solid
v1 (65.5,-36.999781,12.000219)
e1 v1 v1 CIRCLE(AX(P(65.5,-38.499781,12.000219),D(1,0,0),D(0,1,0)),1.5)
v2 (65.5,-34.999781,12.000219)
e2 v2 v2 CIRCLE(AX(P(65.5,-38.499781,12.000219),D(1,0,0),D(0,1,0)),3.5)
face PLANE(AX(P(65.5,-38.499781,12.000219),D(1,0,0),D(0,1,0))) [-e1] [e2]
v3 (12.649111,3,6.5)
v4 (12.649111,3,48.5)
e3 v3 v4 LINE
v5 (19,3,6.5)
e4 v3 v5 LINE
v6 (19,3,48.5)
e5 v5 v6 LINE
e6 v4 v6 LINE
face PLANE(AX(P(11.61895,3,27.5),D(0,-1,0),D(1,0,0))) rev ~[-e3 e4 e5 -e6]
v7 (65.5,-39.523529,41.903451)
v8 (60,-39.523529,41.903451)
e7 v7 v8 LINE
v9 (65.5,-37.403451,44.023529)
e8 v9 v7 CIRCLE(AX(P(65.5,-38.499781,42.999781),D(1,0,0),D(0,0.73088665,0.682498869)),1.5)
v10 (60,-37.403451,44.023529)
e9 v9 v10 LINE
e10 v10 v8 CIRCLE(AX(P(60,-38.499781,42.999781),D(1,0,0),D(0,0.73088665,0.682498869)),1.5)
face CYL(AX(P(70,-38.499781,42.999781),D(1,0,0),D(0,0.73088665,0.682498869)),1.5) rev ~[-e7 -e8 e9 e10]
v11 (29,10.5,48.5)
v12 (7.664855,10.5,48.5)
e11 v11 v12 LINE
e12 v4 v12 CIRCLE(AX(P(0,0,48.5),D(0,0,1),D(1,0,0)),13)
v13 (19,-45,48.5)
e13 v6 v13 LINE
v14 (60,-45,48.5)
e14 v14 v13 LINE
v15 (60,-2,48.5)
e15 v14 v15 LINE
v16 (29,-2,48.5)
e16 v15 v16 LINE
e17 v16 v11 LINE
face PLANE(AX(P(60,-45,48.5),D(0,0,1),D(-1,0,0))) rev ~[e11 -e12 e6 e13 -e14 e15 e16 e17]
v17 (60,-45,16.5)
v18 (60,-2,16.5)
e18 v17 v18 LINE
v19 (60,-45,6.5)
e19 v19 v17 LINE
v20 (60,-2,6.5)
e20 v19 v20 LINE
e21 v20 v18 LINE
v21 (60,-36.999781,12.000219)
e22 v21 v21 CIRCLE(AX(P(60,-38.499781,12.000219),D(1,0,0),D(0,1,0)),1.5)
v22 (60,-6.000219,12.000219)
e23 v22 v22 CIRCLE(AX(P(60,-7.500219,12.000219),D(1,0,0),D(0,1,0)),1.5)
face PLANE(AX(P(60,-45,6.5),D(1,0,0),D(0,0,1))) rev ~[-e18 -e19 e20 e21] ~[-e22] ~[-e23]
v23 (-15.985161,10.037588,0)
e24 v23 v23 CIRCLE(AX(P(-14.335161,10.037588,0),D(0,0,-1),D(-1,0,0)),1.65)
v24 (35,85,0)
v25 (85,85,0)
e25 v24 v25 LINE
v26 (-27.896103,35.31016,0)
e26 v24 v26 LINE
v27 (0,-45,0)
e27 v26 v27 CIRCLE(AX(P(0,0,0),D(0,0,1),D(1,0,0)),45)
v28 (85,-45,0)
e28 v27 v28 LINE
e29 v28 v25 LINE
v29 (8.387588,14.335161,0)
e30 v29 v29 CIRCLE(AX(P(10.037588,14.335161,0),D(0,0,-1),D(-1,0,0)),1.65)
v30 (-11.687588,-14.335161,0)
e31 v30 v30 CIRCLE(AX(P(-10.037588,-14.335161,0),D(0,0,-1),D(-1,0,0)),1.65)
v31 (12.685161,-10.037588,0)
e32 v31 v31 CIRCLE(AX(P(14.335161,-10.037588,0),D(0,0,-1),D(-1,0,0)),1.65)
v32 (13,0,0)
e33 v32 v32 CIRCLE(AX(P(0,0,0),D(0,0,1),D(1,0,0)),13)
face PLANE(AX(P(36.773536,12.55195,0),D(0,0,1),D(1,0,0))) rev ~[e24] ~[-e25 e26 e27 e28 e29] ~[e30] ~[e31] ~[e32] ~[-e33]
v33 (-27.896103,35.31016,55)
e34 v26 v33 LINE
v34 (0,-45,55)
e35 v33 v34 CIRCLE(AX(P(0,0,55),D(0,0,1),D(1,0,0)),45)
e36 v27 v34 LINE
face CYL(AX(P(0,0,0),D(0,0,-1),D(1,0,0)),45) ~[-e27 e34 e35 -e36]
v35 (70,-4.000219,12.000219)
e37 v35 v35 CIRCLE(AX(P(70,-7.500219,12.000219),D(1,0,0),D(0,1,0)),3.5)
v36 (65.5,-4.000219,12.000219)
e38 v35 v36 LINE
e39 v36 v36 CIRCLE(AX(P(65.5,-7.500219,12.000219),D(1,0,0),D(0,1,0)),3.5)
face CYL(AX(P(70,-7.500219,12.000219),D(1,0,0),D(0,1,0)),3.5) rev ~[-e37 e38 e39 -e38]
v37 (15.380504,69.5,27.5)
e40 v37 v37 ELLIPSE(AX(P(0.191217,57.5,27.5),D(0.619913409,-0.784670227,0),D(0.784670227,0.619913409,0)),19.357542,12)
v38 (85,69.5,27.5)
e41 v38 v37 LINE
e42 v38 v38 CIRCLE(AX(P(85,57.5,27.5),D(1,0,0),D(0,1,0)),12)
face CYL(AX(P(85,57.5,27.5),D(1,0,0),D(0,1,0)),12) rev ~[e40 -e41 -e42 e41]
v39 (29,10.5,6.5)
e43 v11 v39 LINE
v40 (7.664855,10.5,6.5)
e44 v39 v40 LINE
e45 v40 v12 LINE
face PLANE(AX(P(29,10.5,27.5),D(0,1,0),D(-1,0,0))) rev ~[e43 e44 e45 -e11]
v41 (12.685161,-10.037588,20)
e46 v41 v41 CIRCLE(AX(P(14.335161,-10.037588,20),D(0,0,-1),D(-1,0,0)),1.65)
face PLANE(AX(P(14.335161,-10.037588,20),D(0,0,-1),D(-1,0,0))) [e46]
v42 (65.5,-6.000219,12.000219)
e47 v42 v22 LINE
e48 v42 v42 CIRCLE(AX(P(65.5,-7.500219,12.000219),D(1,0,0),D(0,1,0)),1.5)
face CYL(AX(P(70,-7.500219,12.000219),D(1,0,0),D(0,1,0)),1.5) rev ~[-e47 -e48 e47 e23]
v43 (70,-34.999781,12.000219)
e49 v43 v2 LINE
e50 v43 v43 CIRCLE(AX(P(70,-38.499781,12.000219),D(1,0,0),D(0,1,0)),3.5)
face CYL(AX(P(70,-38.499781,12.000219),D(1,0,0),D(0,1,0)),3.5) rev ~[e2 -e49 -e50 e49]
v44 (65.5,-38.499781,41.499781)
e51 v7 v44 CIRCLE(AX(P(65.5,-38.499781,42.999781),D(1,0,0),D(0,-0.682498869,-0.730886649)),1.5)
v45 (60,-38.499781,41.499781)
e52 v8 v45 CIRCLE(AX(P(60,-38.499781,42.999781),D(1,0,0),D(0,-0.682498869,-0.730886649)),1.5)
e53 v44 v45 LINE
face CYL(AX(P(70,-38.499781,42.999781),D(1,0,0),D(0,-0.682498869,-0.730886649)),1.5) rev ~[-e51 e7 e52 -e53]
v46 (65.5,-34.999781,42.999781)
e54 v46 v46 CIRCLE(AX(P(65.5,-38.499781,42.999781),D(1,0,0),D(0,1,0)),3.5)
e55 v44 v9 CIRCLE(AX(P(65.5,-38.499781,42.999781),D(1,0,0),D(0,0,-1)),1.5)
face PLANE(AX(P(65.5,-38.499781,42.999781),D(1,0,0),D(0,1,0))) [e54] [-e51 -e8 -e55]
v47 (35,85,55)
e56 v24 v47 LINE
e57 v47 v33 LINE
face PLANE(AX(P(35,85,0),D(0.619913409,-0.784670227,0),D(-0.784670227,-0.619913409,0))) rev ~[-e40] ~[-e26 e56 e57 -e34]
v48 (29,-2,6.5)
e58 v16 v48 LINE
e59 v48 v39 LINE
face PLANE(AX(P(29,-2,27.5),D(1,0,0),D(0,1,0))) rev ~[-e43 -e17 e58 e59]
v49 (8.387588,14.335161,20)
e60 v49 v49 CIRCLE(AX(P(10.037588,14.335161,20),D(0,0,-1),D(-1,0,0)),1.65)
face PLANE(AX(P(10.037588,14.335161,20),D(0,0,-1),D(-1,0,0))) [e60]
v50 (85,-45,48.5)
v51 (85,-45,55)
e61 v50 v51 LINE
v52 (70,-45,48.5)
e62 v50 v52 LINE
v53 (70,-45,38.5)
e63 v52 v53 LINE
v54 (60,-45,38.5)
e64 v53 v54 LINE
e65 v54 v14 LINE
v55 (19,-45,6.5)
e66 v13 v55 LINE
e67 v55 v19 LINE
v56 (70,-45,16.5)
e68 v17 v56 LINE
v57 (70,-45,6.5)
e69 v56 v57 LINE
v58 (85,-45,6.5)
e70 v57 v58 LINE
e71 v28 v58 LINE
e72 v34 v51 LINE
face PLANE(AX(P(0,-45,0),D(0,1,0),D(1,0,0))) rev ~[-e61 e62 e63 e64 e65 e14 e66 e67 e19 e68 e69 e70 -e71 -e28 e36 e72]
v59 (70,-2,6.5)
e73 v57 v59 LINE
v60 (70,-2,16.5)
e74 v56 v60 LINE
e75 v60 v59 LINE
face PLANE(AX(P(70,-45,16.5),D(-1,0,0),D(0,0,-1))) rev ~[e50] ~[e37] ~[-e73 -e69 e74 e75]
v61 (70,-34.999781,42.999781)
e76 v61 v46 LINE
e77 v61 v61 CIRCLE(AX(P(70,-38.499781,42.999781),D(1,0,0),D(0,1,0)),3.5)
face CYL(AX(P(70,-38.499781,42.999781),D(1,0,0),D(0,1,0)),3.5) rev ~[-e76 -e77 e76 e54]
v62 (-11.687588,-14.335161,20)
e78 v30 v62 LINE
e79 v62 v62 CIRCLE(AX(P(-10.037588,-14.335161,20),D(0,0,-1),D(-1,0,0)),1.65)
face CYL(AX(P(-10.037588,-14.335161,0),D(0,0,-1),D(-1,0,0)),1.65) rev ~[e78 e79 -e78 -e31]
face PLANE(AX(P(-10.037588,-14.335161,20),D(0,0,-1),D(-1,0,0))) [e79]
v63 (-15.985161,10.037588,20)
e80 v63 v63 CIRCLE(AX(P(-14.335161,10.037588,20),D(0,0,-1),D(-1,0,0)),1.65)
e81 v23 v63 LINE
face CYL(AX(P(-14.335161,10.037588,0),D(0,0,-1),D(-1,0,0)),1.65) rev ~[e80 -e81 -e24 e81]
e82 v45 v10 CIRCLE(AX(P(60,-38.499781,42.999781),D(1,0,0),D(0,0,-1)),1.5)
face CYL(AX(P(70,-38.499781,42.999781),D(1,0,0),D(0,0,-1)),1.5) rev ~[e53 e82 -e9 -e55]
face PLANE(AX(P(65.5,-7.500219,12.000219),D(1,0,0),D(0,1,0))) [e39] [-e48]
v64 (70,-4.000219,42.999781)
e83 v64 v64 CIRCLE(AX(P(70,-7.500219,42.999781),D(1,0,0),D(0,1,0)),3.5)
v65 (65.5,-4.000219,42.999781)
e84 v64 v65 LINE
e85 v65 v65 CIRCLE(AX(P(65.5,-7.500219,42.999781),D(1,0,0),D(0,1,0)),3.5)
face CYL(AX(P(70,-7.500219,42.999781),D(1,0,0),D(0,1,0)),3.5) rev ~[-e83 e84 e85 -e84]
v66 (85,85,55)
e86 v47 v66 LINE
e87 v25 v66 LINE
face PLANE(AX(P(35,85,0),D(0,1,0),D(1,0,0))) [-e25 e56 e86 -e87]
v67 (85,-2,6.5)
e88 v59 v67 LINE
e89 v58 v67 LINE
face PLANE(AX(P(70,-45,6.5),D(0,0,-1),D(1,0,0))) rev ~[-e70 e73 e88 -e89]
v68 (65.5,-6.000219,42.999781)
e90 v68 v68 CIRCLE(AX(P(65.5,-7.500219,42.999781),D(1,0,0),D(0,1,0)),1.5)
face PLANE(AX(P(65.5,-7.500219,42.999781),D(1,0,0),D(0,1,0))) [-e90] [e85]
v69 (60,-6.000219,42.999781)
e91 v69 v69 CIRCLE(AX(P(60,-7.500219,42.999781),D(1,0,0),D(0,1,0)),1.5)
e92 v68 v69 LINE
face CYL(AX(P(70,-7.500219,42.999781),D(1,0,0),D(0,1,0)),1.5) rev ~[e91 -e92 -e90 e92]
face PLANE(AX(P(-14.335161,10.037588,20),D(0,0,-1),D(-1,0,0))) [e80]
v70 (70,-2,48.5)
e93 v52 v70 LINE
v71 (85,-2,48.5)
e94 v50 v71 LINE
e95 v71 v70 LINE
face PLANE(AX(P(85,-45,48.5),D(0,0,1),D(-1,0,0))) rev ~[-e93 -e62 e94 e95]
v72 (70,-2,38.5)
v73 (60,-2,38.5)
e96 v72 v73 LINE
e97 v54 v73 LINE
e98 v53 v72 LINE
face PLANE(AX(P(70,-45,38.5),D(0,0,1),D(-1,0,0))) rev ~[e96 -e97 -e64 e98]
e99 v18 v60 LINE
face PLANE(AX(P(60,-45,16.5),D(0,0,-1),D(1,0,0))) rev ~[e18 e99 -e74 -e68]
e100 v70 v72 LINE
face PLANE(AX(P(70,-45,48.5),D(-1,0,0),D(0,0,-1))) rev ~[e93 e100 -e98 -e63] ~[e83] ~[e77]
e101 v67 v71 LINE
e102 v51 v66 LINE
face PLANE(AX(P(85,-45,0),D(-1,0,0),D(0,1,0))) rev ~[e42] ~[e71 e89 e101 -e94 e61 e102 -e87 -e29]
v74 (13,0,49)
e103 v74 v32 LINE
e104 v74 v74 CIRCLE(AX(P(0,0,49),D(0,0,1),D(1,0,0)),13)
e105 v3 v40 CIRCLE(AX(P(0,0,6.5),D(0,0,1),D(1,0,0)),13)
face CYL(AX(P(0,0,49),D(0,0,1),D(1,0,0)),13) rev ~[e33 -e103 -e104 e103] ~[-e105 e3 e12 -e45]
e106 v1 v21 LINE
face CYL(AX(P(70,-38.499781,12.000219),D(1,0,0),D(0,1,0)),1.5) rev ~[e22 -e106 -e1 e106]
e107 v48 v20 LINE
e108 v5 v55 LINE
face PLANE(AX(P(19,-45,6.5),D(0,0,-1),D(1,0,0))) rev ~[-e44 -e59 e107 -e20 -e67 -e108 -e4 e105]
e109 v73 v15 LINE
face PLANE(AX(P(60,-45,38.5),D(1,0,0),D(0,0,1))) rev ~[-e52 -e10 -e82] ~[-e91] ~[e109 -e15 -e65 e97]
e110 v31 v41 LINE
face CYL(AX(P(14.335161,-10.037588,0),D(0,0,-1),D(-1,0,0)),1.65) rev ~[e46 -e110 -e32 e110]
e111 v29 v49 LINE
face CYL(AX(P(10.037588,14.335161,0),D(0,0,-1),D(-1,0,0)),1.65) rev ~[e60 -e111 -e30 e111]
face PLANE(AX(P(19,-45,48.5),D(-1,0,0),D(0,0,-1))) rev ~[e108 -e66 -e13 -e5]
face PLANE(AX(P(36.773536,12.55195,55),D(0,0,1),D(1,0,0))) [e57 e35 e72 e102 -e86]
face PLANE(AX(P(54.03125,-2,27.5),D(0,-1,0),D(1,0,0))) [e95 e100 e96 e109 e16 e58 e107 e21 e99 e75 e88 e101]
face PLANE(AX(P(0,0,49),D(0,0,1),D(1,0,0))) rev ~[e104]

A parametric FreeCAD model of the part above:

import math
import FreeCAD as App
import Part
import Sketcher

V = App.Vector

doc = App.newDocument("Part")
body = doc.addObject("PartDesign::Body", "Body")

# Sketch on XY plane
sketch1 = body.newObject("Sketcher::SketchObject", "Sketch")
sketch1.AttachmentSupport = (doc.getObject("XY_Plane"), [""])
sketch1.MapMode = "FlatFace"
sketch1.addGeometry([
    Part.LineSegment(V(35, 85, 0), V(-28, 35, 0)),  # 0
    Part.ArcOfCircle(Part.Circle(V(0, 0, 0), V(0, 0, 1), 45), math.radians(128), math.radians(270)),  # 1
    Part.LineSegment(V(0, -45, 0), V(85, -45, 0)),  # 2
    Part.LineSegment(V(85, -45, 0), V(85, 85, 0)),  # 3
    Part.LineSegment(V(85, 85, 0), V(35, 85, 0)),  # 4
], False)
sketch1.addConstraint([
    Sketcher.Constraint("Tangent", 0, 2, 1, 1),
    Sketcher.Constraint("Tangent", 1, 2, 2, 1),
    Sketcher.Constraint("Coincident", 2, 2, 3, 1),
    Sketcher.Constraint("Coincident", 3, 2, 4, 1),
    Sketcher.Constraint("Coincident", 4, 2, 0, 1),
    Sketcher.Constraint("Horizontal", 2),
    Sketcher.Constraint("Vertical", 3),
    Sketcher.Constraint("Horizontal", 4),
    Sketcher.Constraint("Coincident", 1, 3, -1, 1),
    Sketcher.Constraint("Radius", 1, 45.0),
    Sketcher.Constraint("DistanceX", 2, 1, 2, 2, 85.0),
    Sketcher.Constraint("DistanceX", 4, 2, 4, 1, 50.0),
    Sketcher.Constraint("DistanceY", 3, 1, 3, 2, 130.0),
])
pad1 = body.newObject("PartDesign::Pad", "Pad")
pad1.Profile = sketch1
pad1.Length = 55

# Sketch on XZ plane
sketch2 = body.newObject("Sketcher::SketchObject", "Sketch001")
sketch2.AttachmentSupport = (doc.getObject("XZ_Plane"), [""])
sketch2.MapMode = "FlatFace"
sketch2.AttachmentOffset = App.Placement(V(0, 0, 45), App.Rotation())
sketch2.addGeometry([
    Part.LineSegment(V(60, 48, 0), V(19, 48, 0)),  # 0
    Part.LineSegment(V(19, 48, 0), V(19, 6, 0)),  # 1
    Part.LineSegment(V(19, 6, 0), V(60, 6, 0)),  # 2
    Part.LineSegment(V(60, 6, 0), V(60, 16, 0)),  # 3
    Part.LineSegment(V(60, 16, 0), V(70, 16, 0)),  # 4
    Part.LineSegment(V(70, 16, 0), V(70, 6, 0)),  # 5
    Part.LineSegment(V(70, 6, 0), V(85, 6, 0)),  # 6
    Part.LineSegment(V(85, 6, 0), V(85, 48, 0)),  # 7
    Part.LineSegment(V(85, 48, 0), V(70, 48, 0)),  # 8
    Part.LineSegment(V(70, 48, 0), V(70, 38, 0)),  # 9
    Part.LineSegment(V(70, 38, 0), V(60, 38, 0)),  # 10
    Part.LineSegment(V(60, 38, 0), V(60, 48, 0)),  # 11
], False)
sketch2.addConstraint([
    Sketcher.Constraint("Coincident", 0, 2, 1, 1),
    Sketcher.Constraint("Coincident", 1, 2, 2, 1),
    Sketcher.Constraint("Coincident", 2, 2, 3, 1),
    Sketcher.Constraint("Coincident", 3, 2, 4, 1),
    Sketcher.Constraint("Coincident", 4, 2, 5, 1),
    Sketcher.Constraint("Coincident", 5, 2, 6, 1),
    Sketcher.Constraint("Coincident", 6, 2, 7, 1),
    Sketcher.Constraint("Coincident", 7, 2, 8, 1),
    Sketcher.Constraint("Coincident", 8, 2, 9, 1),
    Sketcher.Constraint("Coincident", 9, 2, 10, 1),
    Sketcher.Constraint("Coincident", 10, 2, 11, 1),
    Sketcher.Constraint("Coincident", 11, 2, 0, 1),
    Sketcher.Constraint("Horizontal", 0),
    Sketcher.Constraint("Vertical", 1),
    Sketcher.Constraint("Horizontal", 2),
    Sketcher.Constraint("Vertical", 3),
    Sketcher.Constraint("Horizontal", 4),
    Sketcher.Constraint("Vertical", 5),
    Sketcher.Constraint("Horizontal", 6),
    Sketcher.Constraint("Vertical", 7),
    Sketcher.Constraint("Horizontal", 8),
    Sketcher.Constraint("Vertical", 9),
    Sketcher.Constraint("Horizontal", 10),
    Sketcher.Constraint("Vertical", 11),
    Sketcher.Constraint("Horizontal", 2, 2, 5, 2),
    Sketcher.Constraint("Horizontal", 0, 2, 7, 2),
    Sketcher.Constraint("Vertical", 5, 2, 8, 2),
    Sketcher.Constraint("Vertical", 3, 2, 10, 2),
    Sketcher.Constraint("Equal", 10, 3),
    Sketcher.Constraint("Equal", 5, 9),
    Sketcher.Constraint("DistanceX", 0, 2, 0, 1, 41.0),
    Sketcher.Constraint("DistanceX", 4, 1, 4, 2, 10.0),
    Sketcher.Constraint("DistanceX", 6, 1, 6, 2, 15.0),
    Sketcher.Constraint("DistanceY", 1, 2, 1, 1, 42.0),
    Sketcher.Constraint("DistanceX", -1, 1, 0, 2, 19.0),
    Sketcher.Constraint("DistanceY", -1, 1, 0, 2, 48.5),
])
pocket1 = body.newObject("PartDesign::Pocket", "Pocket")
pocket1.Profile = sketch2
pocket1.Length = 43

# Sketch on YZ plane
sketch3 = body.newObject("Sketcher::SketchObject", "Sketch002")
sketch3.AttachmentSupport = (doc.getObject("YZ_Plane"), [""])
sketch3.MapMode = "FlatFace"
sketch3.AttachmentOffset = App.Placement(V(0, 0, 70), App.Rotation())
sketch3.addGeometry([
    Part.Circle(V(-7.5, 43, 0), V(0, 0, 1), 1.5),  # 0
    Part.Circle(V(-7.5, 12, 0), V(0, 0, 1), 1.5),  # 1
    Part.Circle(V(-38.5, 12, 0), V(0, 0, 1), 1.5),  # 2
    Part.ArcOfCircle(Part.Circle(V(-38.5, 43, 0), V(0, 0, 1), 1.5), math.radians(-90), math.radians(43)),  # 3
    Part.ArcOfCircle(Part.Circle(V(-38.5, 43, 0), V(0, 0, 1), 1.5), math.radians(43), math.radians(227)),  # 4
    Part.ArcOfCircle(Part.Circle(V(-38.5, 43, 0), V(0, 0, 1), 1.5), math.radians(-133), math.radians(-90)),  # 5
], False)
sketch3.addConstraint([
    Sketcher.Constraint("Tangent", 3, 2, 4, 1),
    Sketcher.Constraint("Tangent", 4, 2, 5, 1),
    Sketcher.Constraint("Tangent", 5, 2, 3, 1),
    Sketcher.Constraint("Equal", 0, 1),
    Sketcher.Constraint("Equal", 1, 2),
    Sketcher.Constraint("Equal", 2, 3),
    Sketcher.Constraint("Horizontal", 1, 3, 2, 3),
    Sketcher.Constraint("Horizontal", 0, 3, 3, 3),
    Sketcher.Constraint("Vertical", 0, 3, 1, 3),
    Sketcher.Constraint("Vertical", 2, 3, 3, 3),
    Sketcher.Constraint("Vertical", 4, 3, 5, 2),
    Sketcher.Constraint("Diameter", 0, 3.0),
    Sketcher.Constraint("DistanceX", 0, 3, -1, 1, 7.500219),
    Sketcher.Constraint("DistanceY", -1, 1, 0, 3, 42.999781),
    Sketcher.Constraint("DistanceY", -1, 1, 1, 3, 12.000219),
    Sketcher.Constraint("DistanceX", 2, 3, -1, 1, 38.499781),
    Sketcher.Constraint("DistanceX", 3, 2, -1, 1, 37.403451),
    Sketcher.Constraint("DistanceX", 4, 2, -1, 1, 39.523529),
])
pocket2 = body.newObject("PartDesign::Pocket", "Pocket001")
pocket2.Profile = sketch3
pocket2.Length = 10

# Sketch on YZ plane
sketch4 = body.newObject("Sketcher::SketchObject", "Sketch003")
sketch4.AttachmentSupport = (doc.getObject("YZ_Plane"), [""])
sketch4.MapMode = "FlatFace"
sketch4.AttachmentOffset = App.Placement(V(0, 0, 70), App.Rotation())
sketch4.addGeometry([
    Part.Circle(V(-7.5, 43, 0), V(0, 0, 1), 3.5),
    Part.Circle(V(-7.5, 12, 0), V(0, 0, 1), 3.5),
    Part.Circle(V(-38.5, 12, 0), V(0, 0, 1), 3.5),
    Part.Circle(V(-38.5, 43, 0), V(0, 0, 1), 3.5),
], False)
sketch4.addConstraint([
    Sketcher.Constraint("Equal", 0, 1),
    Sketcher.Constraint("Equal", 1, 2),
    Sketcher.Constraint("Equal", 2, 3),
    Sketcher.Constraint("Horizontal", 1, 3, 2, 3),
    Sketcher.Constraint("Horizontal", 0, 3, 3, 3),
    Sketcher.Constraint("Vertical", 0, 3, 1, 3),
    Sketcher.Constraint("Vertical", 2, 3, 3, 3),
    Sketcher.Constraint("Diameter", 0, 7.0),
    Sketcher.Constraint("DistanceX", 0, 3, -1, 1, 7.500219),
    Sketcher.Constraint("DistanceY", -1, 1, 0, 3, 42.999781),
    Sketcher.Constraint("DistanceY", -1, 1, 1, 3, 12.000219),
    Sketcher.Constraint("DistanceX", 2, 3, -1, 1, 38.499781),
])
pocket3 = body.newObject("PartDesign::Pocket", "Pocket002")
pocket3.Profile = sketch4
pocket3.Length = 4.5

# Sketch on XY plane
sketch5 = body.newObject("Sketcher::SketchObject", "Sketch004")
sketch5.AttachmentSupport = (doc.getObject("XY_Plane"), [""])
sketch5.MapMode = "FlatFace"
sketch5.AttachmentOffset = App.Placement(V(0, 0, 27.5), App.Rotation())
sketch5.addGeometry([
    Part.LineSegment(V(29, 10, 0), V(6, 10, 0)),  # 0
    Part.ArcOfCircle(Part.Circle(V(0, 0, 0), V(0, 0, 1), 12), math.radians(14), math.radians(61)),  # 1
    Part.LineSegment(V(12, 3, 0), V(19, 3, 0)),  # 2
    Part.LineSegment(V(19, 3, 0), V(19, -2, 0)),  # 3
    Part.LineSegment(V(19, -2, 0), V(29, -2, 0)),  # 4
    Part.LineSegment(V(29, -2, 0), V(29, 10, 0)),  # 5
], False)
sketch5.addConstraint([
    Sketcher.Constraint("Coincident", 0, 2, 1, 2),
    Sketcher.Constraint("Coincident", 1, 1, 2, 1),
    Sketcher.Constraint("Coincident", 2, 2, 3, 1),
    Sketcher.Constraint("Coincident", 3, 2, 4, 1),
    Sketcher.Constraint("Coincident", 4, 2, 5, 1),
    Sketcher.Constraint("Coincident", 5, 2, 0, 1),
    Sketcher.Constraint("Horizontal", 0),
    Sketcher.Constraint("Horizontal", 2),
    Sketcher.Constraint("Vertical", 3),
    Sketcher.Constraint("Horizontal", 4),
    Sketcher.Constraint("Vertical", 5),
    Sketcher.Constraint("Coincident", 1, 3, -1, 1),
    Sketcher.Constraint("Radius", 1, 12.0),
    Sketcher.Constraint("DistanceX", 4, 1, 4, 2, 10.0),
    Sketcher.Constraint("DistanceY", 3, 2, 3, 1, 5.0),
    Sketcher.Constraint("DistanceY", 5, 1, 5, 2, 12.5),
    Sketcher.Constraint("DistanceY", -1, 1, 1, 1, 3.0),
    Sketcher.Constraint("DistanceX", -1, 1, 2, 2, 19.0),
])
pocket4 = body.newObject("PartDesign::Pocket", "Pocket003")
pocket4.Profile = sketch5
pocket4.Length = 42
pocket4.Midplane = True

# Sketch on XY plane
sketch6 = body.newObject("Sketcher::SketchObject", "Sketch005")
sketch6.AttachmentSupport = (doc.getObject("XY_Plane"), [""])
sketch6.MapMode = "FlatFace"
sketch6.AttachmentOffset = App.Placement(V(0, 0, 49), App.Rotation())
sketch6.addGeometry(Part.Circle(V(0, 0, 0), V(0, 0, 1), 13), False)
sketch6.addConstraint([
    Sketcher.Constraint("Coincident", 0, 3, -1, 1),
    Sketcher.Constraint("Diameter", 0, 26.0),
])
pocket5 = body.newObject("PartDesign::Pocket", "Pocket004")
pocket5.Profile = sketch6
pocket5.Length = 49

# Sketch on YZ plane
sketch7 = body.newObject("Sketcher::SketchObject", "Sketch006")
sketch7.AttachmentSupport = (doc.getObject("YZ_Plane"), [""])
sketch7.MapMode = "FlatFace"
sketch7.AttachmentOffset = App.Placement(V(0, 0, 85), App.Rotation())
sketch7.addGeometry(Part.Circle(V(58, 28, 0), V(0, 0, 1), 12), False)
sketch7.addConstraint([
    Sketcher.Constraint("Diameter", 0, 24.0),
    Sketcher.Constraint("DistanceX", -1, 1, 0, 3, 57.5),
    Sketcher.Constraint("DistanceY", -1, 1, 0, 3, 27.5),
])
pocket6 = body.newObject("PartDesign::Pocket", "Pocket005")
pocket6.Profile = sketch7
pocket6.Type = "ThroughAll"

# Sketch on XY plane
sketch8 = body.newObject("Sketcher::SketchObject", "Sketch007")
sketch8.AttachmentSupport = (doc.getObject("XY_Plane"), [""])
sketch8.MapMode = "FlatFace"
sketch8.addGeometry([
    Part.Circle(V(10, 14.3, 0), V(0, 0, 1), 1.6),
    Part.Circle(V(-14.3, 10, 0), V(0, 0, 1), 1.6),
    Part.Circle(V(-10, -14.3, 0), V(0, 0, 1), 1.6),
    Part.Circle(V(14.3, -10, 0), V(0, 0, 1), 1.6),
], False)
sketch8.addConstraint([
    Sketcher.Constraint("Equal", 0, 1),
    Sketcher.Constraint("Equal", 1, 2),
    Sketcher.Constraint("Equal", 2, 3),
    Sketcher.Constraint("Symmetric", 0, 3, 2, 3, -1, 1),
    Sketcher.Constraint("Symmetric", 1, 3, 3, 3, -1, 1),
    Sketcher.Constraint("Diameter", 0, 3.3),
    Sketcher.Constraint("DistanceY", -1, 1, 0, 3, 14.335161),
    Sketcher.Constraint("DistanceX", 1, 3, -1, 1, 14.335161),
    Sketcher.Constraint("DistanceX", 1, 3, 0, 3, 24.372748),
    Sketcher.Constraint("DistanceY", 2, 3, 1, 3, 24.372748),
])
pocket7 = body.newObject("PartDesign::Pocket", "Pocket006")
pocket7.Profile = sketch8
pocket7.Length = 20
pocket7.Reversed = True

doc.recompute()
